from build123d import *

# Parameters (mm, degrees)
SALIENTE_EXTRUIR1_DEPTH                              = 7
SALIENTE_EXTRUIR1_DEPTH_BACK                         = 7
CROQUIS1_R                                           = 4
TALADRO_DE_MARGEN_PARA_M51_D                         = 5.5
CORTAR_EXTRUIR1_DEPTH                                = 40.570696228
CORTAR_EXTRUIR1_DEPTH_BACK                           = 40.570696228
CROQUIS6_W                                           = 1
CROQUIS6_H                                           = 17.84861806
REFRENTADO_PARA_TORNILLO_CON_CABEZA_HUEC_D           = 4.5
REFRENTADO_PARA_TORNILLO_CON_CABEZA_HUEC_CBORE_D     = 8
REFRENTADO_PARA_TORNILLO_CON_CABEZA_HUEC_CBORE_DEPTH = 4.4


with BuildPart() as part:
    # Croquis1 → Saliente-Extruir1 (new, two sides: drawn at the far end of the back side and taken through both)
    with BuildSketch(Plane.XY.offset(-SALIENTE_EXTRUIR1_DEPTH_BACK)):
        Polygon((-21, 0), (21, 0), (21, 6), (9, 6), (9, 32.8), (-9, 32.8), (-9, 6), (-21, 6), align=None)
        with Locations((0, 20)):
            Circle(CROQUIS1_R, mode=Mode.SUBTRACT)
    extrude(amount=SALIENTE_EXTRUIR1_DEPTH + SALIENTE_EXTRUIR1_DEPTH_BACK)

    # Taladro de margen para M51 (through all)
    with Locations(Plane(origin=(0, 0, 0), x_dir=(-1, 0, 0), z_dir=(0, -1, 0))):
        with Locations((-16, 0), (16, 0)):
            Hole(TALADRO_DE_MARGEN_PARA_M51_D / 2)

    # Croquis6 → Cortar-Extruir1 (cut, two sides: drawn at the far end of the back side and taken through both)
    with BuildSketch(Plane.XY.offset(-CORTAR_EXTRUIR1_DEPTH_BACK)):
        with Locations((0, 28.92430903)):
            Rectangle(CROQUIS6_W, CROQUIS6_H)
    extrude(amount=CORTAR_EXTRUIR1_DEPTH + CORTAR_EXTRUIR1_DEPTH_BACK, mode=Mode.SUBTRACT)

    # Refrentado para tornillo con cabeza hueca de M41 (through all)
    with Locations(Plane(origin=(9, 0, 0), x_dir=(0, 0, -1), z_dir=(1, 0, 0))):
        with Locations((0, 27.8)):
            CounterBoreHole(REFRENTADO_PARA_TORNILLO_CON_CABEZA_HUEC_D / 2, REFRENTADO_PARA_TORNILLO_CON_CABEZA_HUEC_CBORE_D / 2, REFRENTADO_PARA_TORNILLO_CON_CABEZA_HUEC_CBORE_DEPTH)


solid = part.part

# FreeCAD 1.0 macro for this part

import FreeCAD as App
import Part
import Sketcher
from FreeCAD import Vector
Q = App.Units.Quantity

doc = App.newDocument("Part")
body = doc.addObject("PartDesign::Body", "Body")

# Sketch on XY plane
sketch1 = body.newObject("Sketcher::SketchObject", "Sketch")
sketch1.AttachmentSupport = (doc.getObject("XY_Plane"), [""])
sketch1.MapMode = "FlatFace"
sketch1.addGeometry([
    Part.LineSegment(Vector(-21, 0, 0), Vector(21, 0, 0)),  # 0
    Part.LineSegment(Vector(21, 0, 0), Vector(21, 6, 0)),  # 1
    Part.LineSegment(Vector(21, 6, 0), Vector(9, 6, 0)),  # 2
    Part.LineSegment(Vector(9, 6, 0), Vector(9, 32.8, 0)),  # 3
    Part.LineSegment(Vector(9, 32.8, 0), Vector(-9, 32.8, 0)),  # 4
    Part.LineSegment(Vector(-9, 32.8, 0), Vector(-9, 6, 0)),  # 5
    Part.LineSegment(Vector(-9, 6, 0), Vector(-21, 6, 0)),  # 6
    Part.LineSegment(Vector(-21, 6, 0), Vector(-21, 0, 0)),  # 7
    Part.Circle(Vector(0, 20, 0), Vector(0, 0, 1), 4),  # 8
], False)
sketch1.addConstraint([
    Sketcher.Constraint("Coincident", 0, 2, 1, 1),
    Sketcher.Constraint("Coincident", 1, 2, 2, 1),
    Sketcher.Constraint("Coincident", 2, 2, 3, 1),
    Sketcher.Constraint("Coincident", 3, 2, 4, 1),
    Sketcher.Constraint("Coincident", 4, 2, 5, 1),
    Sketcher.Constraint("Coincident", 5, 2, 6, 1),
    Sketcher.Constraint("Coincident", 6, 2, 7, 1),
    Sketcher.Constraint("Coincident", 7, 2, 0, 1),
    Sketcher.Constraint("Horizontal", 0),
    Sketcher.Constraint("Vertical", 1),
    Sketcher.Constraint("Horizontal", 2),
    Sketcher.Constraint("Vertical", 3),
    Sketcher.Constraint("Horizontal", 4),
    Sketcher.Constraint("Vertical", 5),
    Sketcher.Constraint("Horizontal", 6),
    Sketcher.Constraint("Vertical", 7),
    Sketcher.Constraint("Symmetric", 0, 2, 7, 2, -1, 1),
    Sketcher.Constraint("Symmetric", 2, 2, 5, 2, -2),
    Sketcher.Constraint("PointOnObject", 8, 3, -2),
    Sketcher.Constraint("Diameter", 8, Q("8 mm")),
    Sketcher.Constraint("DistanceX", 0, 1, 0, 2, Q("42 mm")),
    Sketcher.Constraint("DistanceX", 2, 2, 2, 1, Q("12 mm")),
    Sketcher.Constraint("DistanceY", 1, 1, 1, 2, Q("6 mm")),
    Sketcher.Constraint("DistanceY", 3, 1, 3, 2, Q("26.8 mm")),
    Sketcher.Constraint("DistanceY", -1, 1, 8, 3, Q("20 mm")),
])
pad1 = body.newObject("PartDesign::Pad", "Pad")
pad1.Profile = sketch1
pad1.Type = "TwoLengths"
pad1.Length = 7
pad1.Length2 = 7

# Sketch on XZ plane
sketch2 = body.newObject("Sketcher::SketchObject", "Sketch001")
sketch2.AttachmentSupport = (doc.getObject("XZ_Plane"), [""])
sketch2.MapMode = "FlatFace"
sketch2.addGeometry([
    Part.Circle(Vector(16, 0, 0), Vector(0, 0, 1), 2.8),
    Part.Circle(Vector(-16, 0, 0), Vector(0, 0, 1), 2.8),
], False)
sketch2.addConstraint([
    Sketcher.Constraint("Equal", 0, 1),
    Sketcher.Constraint("Symmetric", 0, 3, 1, 3, -1, 1),
    Sketcher.Constraint("PointOnObject", 0, 3, -1),
    Sketcher.Constraint("Diameter", 0, Q("5.5 mm")),
    Sketcher.Constraint("DistanceX", -1, 1, 0, 3, Q("16 mm")),
])
doc.recompute()
hole = body.newObject("PartDesign::Hole", "Hole")
hole.Profile = sketch2
hole.ThreadType = "None"
hole.Diameter = 5.5
hole.DepthType = "ThroughAll"

# Sketch on XY plane
sketch3 = body.newObject("Sketcher::SketchObject", "Sketch002")
sketch3.AttachmentSupport = (doc.getObject("XY_Plane"), [""])
sketch3.MapMode = "FlatFace"
sketch3.addGeometry([
    Part.LineSegment(Vector(-0.5, 37.8, 0), Vector(-0.5, 20, 0)),
    Part.LineSegment(Vector(-0.5, 20, 0), Vector(0.5, 20, 0)),
    Part.LineSegment(Vector(0.5, 20, 0), Vector(0.5, 37.8, 0)),
    Part.LineSegment(Vector(0.5, 37.8, 0), Vector(-0.5, 37.8, 0)),
], False)
sketch3.addConstraint([
    Sketcher.Constraint("Coincident", 0, 2, 1, 1),
    Sketcher.Constraint("Coincident", 1, 2, 2, 1),
    Sketcher.Constraint("Coincident", 2, 2, 3, 1),
    Sketcher.Constraint("Coincident", 3, 2, 0, 1),
    Sketcher.Constraint("Vertical", 0),
    Sketcher.Constraint("Horizontal", 1),
    Sketcher.Constraint("Vertical", 2),
    Sketcher.Constraint("Horizontal", 3),
    Sketcher.Constraint("DistanceX", 1, 1, 1, 2, Q("1 mm")),
    Sketcher.Constraint("DistanceY", -1, 1, 0, 2, Q("20 mm")),
    Sketcher.Constraint("DistanceX", 0, 2, -1, 1, Q("0.5 mm")),
    Sketcher.Constraint("DistanceY", 0, 2, 0, 1, Q("17.848618 mm")),
])
pocket1 = body.newObject("PartDesign::Pocket", "Pocket")
pocket1.Profile = sketch3
pocket1.Type = "ThroughAll"
pocket1.Midplane = True

# Sketch on YZ plane
sketch4 = body.newObject("Sketcher::SketchObject", "Sketch003")
sketch4.AttachmentSupport = (doc.getObject("YZ_Plane"), [""])
sketch4.MapMode = "FlatFace"
sketch4.AttachmentOffset = App.Placement(Vector(0, 0, 9), App.Rotation())
sketch4.addGeometry(Part.Circle(Vector(27.8, 0, 0), Vector(0, 0, 1), 2.2), False)
sketch4.addConstraint([
    Sketcher.Constraint("PointOnObject", 0, 3, -1),
    Sketcher.Constraint("Diameter", 0, Q("4.5 mm")),
    Sketcher.Constraint("DistanceX", -1, 1, 0, 3, Q("27.8 mm")),
])
doc.recompute()
hole2 = body.newObject("PartDesign::Hole", "Hole001")
hole2.Profile = sketch4
hole2.ThreadType = "None"
hole2.Diameter = 4.5
hole2.DepthType = "ThroughAll"
hole2.HoleCutType = "Counterbore"
hole2.HoleCutDiameter = 8
hole2.HoleCutDepth = 4.4

doc.recompute()
